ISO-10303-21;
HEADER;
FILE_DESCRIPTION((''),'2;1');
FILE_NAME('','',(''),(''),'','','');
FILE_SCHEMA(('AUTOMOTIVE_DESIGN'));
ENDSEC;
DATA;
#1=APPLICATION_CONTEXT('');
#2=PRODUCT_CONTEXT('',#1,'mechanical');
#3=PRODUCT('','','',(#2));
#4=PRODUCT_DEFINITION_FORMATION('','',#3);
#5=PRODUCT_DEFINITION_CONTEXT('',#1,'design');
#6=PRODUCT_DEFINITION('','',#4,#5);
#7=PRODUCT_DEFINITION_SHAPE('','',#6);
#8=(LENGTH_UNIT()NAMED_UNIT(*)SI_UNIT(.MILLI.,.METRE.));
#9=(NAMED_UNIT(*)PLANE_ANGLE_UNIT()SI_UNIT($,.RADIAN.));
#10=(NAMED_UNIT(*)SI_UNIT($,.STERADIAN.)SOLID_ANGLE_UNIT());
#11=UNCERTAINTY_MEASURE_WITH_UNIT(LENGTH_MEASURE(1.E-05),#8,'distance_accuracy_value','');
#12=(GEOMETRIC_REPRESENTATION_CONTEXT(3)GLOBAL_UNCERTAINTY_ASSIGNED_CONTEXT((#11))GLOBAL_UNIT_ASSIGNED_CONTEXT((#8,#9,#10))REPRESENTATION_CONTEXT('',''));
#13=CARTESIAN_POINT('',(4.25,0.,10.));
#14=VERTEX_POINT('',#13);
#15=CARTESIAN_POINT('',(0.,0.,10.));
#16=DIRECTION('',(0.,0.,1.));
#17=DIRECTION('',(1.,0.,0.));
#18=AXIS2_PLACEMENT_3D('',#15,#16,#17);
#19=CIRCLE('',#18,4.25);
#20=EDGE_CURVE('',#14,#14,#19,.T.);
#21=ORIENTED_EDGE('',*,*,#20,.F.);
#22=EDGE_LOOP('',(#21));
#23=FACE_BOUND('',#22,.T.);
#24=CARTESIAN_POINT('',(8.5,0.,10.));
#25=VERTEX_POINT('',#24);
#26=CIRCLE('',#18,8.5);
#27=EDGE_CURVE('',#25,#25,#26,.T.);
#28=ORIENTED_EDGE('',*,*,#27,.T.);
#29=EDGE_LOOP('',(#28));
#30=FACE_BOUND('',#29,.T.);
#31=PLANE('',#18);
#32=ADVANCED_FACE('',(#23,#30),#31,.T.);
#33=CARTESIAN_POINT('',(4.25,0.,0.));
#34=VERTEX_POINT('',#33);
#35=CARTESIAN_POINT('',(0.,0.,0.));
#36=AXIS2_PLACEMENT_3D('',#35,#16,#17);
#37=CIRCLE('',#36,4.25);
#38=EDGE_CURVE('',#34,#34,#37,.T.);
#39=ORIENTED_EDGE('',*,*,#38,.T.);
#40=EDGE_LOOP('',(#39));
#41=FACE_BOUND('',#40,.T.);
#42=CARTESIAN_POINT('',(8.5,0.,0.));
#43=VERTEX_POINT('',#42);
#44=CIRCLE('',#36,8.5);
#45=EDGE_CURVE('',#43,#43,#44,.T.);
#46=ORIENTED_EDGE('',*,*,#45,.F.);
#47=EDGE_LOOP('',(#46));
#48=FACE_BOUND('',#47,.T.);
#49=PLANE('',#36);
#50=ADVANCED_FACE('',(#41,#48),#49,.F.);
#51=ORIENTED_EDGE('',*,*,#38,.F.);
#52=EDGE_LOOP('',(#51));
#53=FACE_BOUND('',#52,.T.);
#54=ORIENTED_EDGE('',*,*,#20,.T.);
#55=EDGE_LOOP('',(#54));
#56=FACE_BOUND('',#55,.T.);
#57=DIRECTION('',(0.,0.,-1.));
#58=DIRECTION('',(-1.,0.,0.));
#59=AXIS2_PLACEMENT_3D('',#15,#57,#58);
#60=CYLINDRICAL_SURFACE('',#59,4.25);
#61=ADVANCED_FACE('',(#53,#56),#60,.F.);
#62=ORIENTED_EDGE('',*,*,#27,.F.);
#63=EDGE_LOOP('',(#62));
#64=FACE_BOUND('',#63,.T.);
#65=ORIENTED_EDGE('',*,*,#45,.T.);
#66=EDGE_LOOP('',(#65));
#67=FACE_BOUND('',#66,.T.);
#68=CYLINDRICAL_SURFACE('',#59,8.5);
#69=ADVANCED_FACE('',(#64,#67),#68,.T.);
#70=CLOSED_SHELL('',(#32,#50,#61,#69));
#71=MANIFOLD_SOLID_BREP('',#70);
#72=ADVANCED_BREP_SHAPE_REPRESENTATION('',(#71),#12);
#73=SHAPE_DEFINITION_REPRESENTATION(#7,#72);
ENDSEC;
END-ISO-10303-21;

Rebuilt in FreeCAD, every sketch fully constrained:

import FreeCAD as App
import Part
import Sketcher

V = App.Vector

doc = App.newDocument("Part")
params = doc.addObject("Spreadsheet::Sheet", "Params")
for row, (alias, value) in enumerate([
    ("sketch1_diameter", "17 mm"),
    ("sketch1_diameter2", "8.5 mm"),
    ("pad1_length", "10 mm"),
], start=1):
    params.set(f"A{row}", alias)
    params.set(f"B{row}", "=" + value)
    params.setAlias(f"B{row}", alias)

body = doc.addObject("PartDesign::Body", "Body")

# Sketch on XY plane
sketch1 = doc.addObject("Sketcher::SketchObject", "Sketch")
body.addObject(sketch1)
sketch1.AttachmentSupport = (doc.XY_Plane, [""])
sketch1.MapMode = "FlatFace"
sketch1.addGeometry(Part.Circle(V(0, 0, 0), V(0, 0, 1), 8.5), False)
sketch1.addGeometry(Part.Circle(V(0, 0, 0), V(0, 0, 1), 4.2), False)
sketch1.addConstraint(Sketcher.Constraint("Coincident", 0, 3, -1, 1))
sketch1.addConstraint(Sketcher.Constraint("Coincident", 1, 3, -1, 1))
sketch1.addConstraint(Sketcher.Constraint("Diameter", 0, 17.0))
sketch1.addConstraint(Sketcher.Constraint("Diameter", 1, 8.5))
sketch1.setExpression("Constraints[2]", "Params.sketch1_diameter")
sketch1.setExpression("Constraints[3]", "Params.sketch1_diameter2")
pad1 = doc.addObject("PartDesign::Pad", "Pad")
body.addObject(pad1)
pad1.Profile = sketch1
pad1.setExpression("Length", "Params.pad1_length")

doc.recompute()
